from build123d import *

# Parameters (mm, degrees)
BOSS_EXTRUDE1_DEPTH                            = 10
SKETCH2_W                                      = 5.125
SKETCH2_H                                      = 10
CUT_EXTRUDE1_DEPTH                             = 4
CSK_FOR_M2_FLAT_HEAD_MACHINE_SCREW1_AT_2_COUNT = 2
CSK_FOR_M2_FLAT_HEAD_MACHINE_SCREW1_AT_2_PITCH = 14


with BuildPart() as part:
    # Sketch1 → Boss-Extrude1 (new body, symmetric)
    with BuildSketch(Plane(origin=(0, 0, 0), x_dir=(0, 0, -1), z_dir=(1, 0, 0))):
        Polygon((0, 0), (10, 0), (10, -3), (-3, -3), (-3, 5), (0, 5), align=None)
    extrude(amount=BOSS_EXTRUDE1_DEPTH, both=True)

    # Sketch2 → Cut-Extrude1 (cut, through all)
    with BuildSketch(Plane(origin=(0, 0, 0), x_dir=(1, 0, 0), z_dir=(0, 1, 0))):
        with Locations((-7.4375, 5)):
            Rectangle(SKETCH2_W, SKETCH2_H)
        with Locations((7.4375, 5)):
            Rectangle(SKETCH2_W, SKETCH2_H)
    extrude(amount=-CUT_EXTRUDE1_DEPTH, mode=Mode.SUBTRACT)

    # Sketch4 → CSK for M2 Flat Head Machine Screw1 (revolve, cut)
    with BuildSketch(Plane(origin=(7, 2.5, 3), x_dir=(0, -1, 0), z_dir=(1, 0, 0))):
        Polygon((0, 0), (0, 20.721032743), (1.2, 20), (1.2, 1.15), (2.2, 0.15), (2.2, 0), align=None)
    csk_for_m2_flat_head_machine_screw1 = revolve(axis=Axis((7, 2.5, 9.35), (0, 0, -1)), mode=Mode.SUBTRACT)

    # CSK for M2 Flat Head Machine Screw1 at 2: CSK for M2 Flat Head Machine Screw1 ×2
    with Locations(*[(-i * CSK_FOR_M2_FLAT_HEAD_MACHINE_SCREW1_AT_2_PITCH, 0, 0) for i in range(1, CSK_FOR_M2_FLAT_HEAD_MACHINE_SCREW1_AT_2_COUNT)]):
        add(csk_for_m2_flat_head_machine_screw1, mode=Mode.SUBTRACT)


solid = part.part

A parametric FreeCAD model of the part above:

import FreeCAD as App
import Part
import Sketcher

V = App.Vector
Q = App.Units.Quantity

doc = App.newDocument("Part")
params = doc.addObject("Spreadsheet::Sheet", "Params")
for row, (alias, value) in enumerate([
    ("sketch1_width", "5 mm"),
    ("sketch1_width2", "8 mm"),
    ("sketch1_height", "10 mm"),
    ("pad1_length", "20 mm"),
    ("sketch2_height", "10 mm"),
    ("sketch3_width", "2.2 mm"),
    ("sketch3_height", "0.15 mm"),
    ("groove_angle", "360 deg"),
    ("linearpattern_pitch", "14 mm"),
], start=1):
    params.set(f"A{row}", alias)
    params.set(f"B{row}", "=" + value)
    params.setAlias(f"B{row}", alias)

body = doc.addObject("PartDesign::Body", "Body")

# Sketch on YZ plane
sketch1 = body.newObject("Sketcher::SketchObject", "Sketch")
sketch1.AttachmentSupport = (doc.getObject("YZ_Plane"), [""])
sketch1.MapMode = "FlatFace"
sketch1.addGeometry([
    Part.LineSegment(V(0, -10, 0), V(0, 0, 0)),  # 0
    Part.LineSegment(V(0, 0, 0), V(5, 0, 0)),  # 1
    Part.LineSegment(V(5, 0, 0), V(5, 3, 0)),  # 2
    Part.LineSegment(V(5, 3, 0), V(-3, 3, 0)),  # 3
    Part.LineSegment(V(-3, 3, 0), V(-3, -10, 0)),  # 4
    Part.LineSegment(V(-3, -10, 0), V(0, -10, 0)),  # 5
], False)
sketch1.addConstraint([
    Sketcher.Constraint("Coincident", 0, 2, 1, 1),
    Sketcher.Constraint("Coincident", 1, 2, 2, 1),
    Sketcher.Constraint("Coincident", 2, 2, 3, 1),
    Sketcher.Constraint("Coincident", 3, 2, 4, 1),
    Sketcher.Constraint("Coincident", 4, 2, 5, 1),
    Sketcher.Constraint("Coincident", 5, 2, 0, 1),
    Sketcher.Constraint("Vertical", 0),
    Sketcher.Constraint("Horizontal", 1),
    Sketcher.Constraint("Vertical", 2),
    Sketcher.Constraint("Horizontal", 3),
    Sketcher.Constraint("Vertical", 4),
    Sketcher.Constraint("Horizontal", 5),
    Sketcher.Constraint("Coincident", 0, 2, -1, 1),
    Sketcher.Constraint("Equal", 5, 2),
    Sketcher.Constraint("DistanceX", 1, 1, 1, 2, 5.0),
    Sketcher.Constraint("DistanceX", 3, 2, 3, 1, 8.0),
    Sketcher.Constraint("DistanceY", 0, 1, 0, 2, 10.0),
])
sketch1.setExpression("Constraints[14]", "Params.sketch1_width")
sketch1.setExpression("Constraints[15]", "Params.sketch1_width2")
sketch1.setExpression("Constraints[16]", "Params.sketch1_height")
pad1 = body.newObject("PartDesign::Pad", "Pad")
pad1.Profile = sketch1
pad1.setExpression("Length", "Params.pad1_length")
pad1.Midplane = True

# Sketch on XZ plane
sketch2 = body.newObject("Sketcher::SketchObject", "Sketch001")
sketch2.AttachmentSupport = (doc.getObject("XZ_Plane"), [""])
sketch2.MapMode = "FlatFace"
sketch2.addGeometry([
    Part.LineSegment(V(-10, -10, 0), V(-10, 0, 0)),  # 0
    Part.LineSegment(V(-10, 0, 0), V(-5, 0, 0)),  # 1
    Part.LineSegment(V(-5, 0, 0), V(-5, -10, 0)),  # 2
    Part.LineSegment(V(-5, -10, 0), V(-10, -10, 0)),  # 3
    Part.LineSegment(V(5, -10, 0), V(5, 0, 0)),  # 4
    Part.LineSegment(V(5, 0, 0), V(10, 0, 0)),  # 5
    Part.LineSegment(V(10, 0, 0), V(10, -10, 0)),  # 6
    Part.LineSegment(V(10, -10, 0), V(5, -10, 0)),  # 7
], False)
sketch2.addConstraint([
    Sketcher.Constraint("Coincident", 0, 2, 1, 1),
    Sketcher.Constraint("Coincident", 1, 2, 2, 1),
    Sketcher.Constraint("Coincident", 2, 2, 3, 1),
    Sketcher.Constraint("Coincident", 3, 2, 0, 1),
    Sketcher.Constraint("Coincident", 4, 2, 5, 1),
    Sketcher.Constraint("Coincident", 5, 2, 6, 1),
    Sketcher.Constraint("Coincident", 6, 2, 7, 1),
    Sketcher.Constraint("Coincident", 7, 2, 4, 1),
    Sketcher.Constraint("Vertical", 0),
    Sketcher.Constraint("Horizontal", 1),
    Sketcher.Constraint("Vertical", 2),
    Sketcher.Constraint("Horizontal", 3),
    Sketcher.Constraint("Vertical", 4),
    Sketcher.Constraint("Horizontal", 5),
    Sketcher.Constraint("Vertical", 6),
    Sketcher.Constraint("Horizontal", 7),
    Sketcher.Constraint("Symmetric", 1, 2, 4, 2, -1, 1),
    Sketcher.Constraint("Symmetric", 0, 2, 5, 2, -2),
    Sketcher.Constraint("Horizontal", 3, 2, 6, 2),
    Sketcher.Constraint("DistanceY", 0, 1, 0, 2, 10.0),
    Sketcher.Constraint("DistanceX", 0, 2, -1, 1, 10.0),
    Sketcher.Constraint("DistanceX", 1, 1, 1, 2, 5.125),
])
sketch2.setExpression("Constraints[19]", "Params.sketch2_height")
pocket1 = body.newObject("PartDesign::Pocket", "Pocket")
pocket1.Profile = sketch2
pocket1.Type = "ThroughAll"
pocket1.Reversed = True

# Sketch on YZ plane
sketch3 = body.newObject("Sketcher::SketchObject", "Sketch002")
sketch3.AttachmentSupport = (doc.getObject("YZ_Plane"), [""])
sketch3.MapMode = "FlatFace"
sketch3.AttachmentOffset = App.Placement(V(0, 0, 7), App.Rotation())
sketch3.addGeometry([
    Part.LineSegment(V(2.5, -17.72, 0), V(2.5, 3, 0)),  # 0
    Part.LineSegment(V(2.5, 3, 0), V(0.3, 3, 0)),  # 1
    Part.LineSegment(V(0.3, 3, 0), V(0.3, 2.85, 0)),  # 2
    Part.LineSegment(V(0.3, 2.85, 0), V(1.3, 1.85, 0)),  # 3
    Part.LineSegment(V(1.3, 1.85, 0), V(1.3, -17, 0)),  # 4
    Part.LineSegment(V(1.3, -17, 0), V(2.5, -17.72, 0)),  # 5
], False)
sketch3.addGeometry(Part.LineSegment(V(2.5, 3, 0), V(2.5, -17.72, 0)), True)  # axis
sketch3.addConstraint([
    Sketcher.Constraint("Coincident", 0, 2, 1, 1),
    Sketcher.Constraint("Coincident", 1, 2, 2, 1),
    Sketcher.Constraint("Coincident", 2, 2, 3, 1),
    Sketcher.Constraint("Coincident", 3, 2, 4, 1),
    Sketcher.Constraint("Coincident", 4, 2, 5, 1),
    Sketcher.Constraint("Coincident", 5, 2, 0, 1),
    Sketcher.Constraint("Vertical", 0),
    Sketcher.Constraint("Horizontal", 1),
    Sketcher.Constraint("Vertical", 2),
    Sketcher.Constraint("Vertical", 4),
    Sketcher.Constraint("Vertical", 6),
    Sketcher.Constraint("Coincident", 6, 1, 0, 2),
    Sketcher.Constraint("Equal", 0, 6),
    Sketcher.Constraint("Angle", 3, Q("-45 deg")),
    Sketcher.Constraint("Angle", 5, Q("-31 deg")),
    Sketcher.Constraint("DistanceX", 1, 2, 1, 1, 2.2),
    Sketcher.Constraint("DistanceY", -1, 1, 0, 2, 3.0),
    Sketcher.Constraint("DistanceY", 4, 2, -1, 1, 17.0),
    Sketcher.Constraint("DistanceX", 2, 2, 3, 2, 1.0),
    Sketcher.Constraint("DistanceY", 2, 2, 2, 1, 0.15),
    Sketcher.Constraint("DistanceX", -1, 1, 0, 2, 2.5),
])
sketch3.setExpression("Constraints[15]", "Params.sketch3_width")
sketch3.setExpression("Constraints[19]", "Params.sketch3_height")
groove = body.newObject("PartDesign::Groove", "Groove")
groove.Profile = sketch3
groove.ReferenceAxis = (sketch3, ["Axis0"])
groove.setExpression("Angle", "Params.groove_angle")
doc.recompute()

linearpattern = body.newObject("PartDesign::LinearPattern", "LinearPattern")
linearpattern.Originals = [groove]
linearpattern.Direction = (doc.getObject("X_Axis"), [""])
linearpattern.Mode = "offset"
linearpattern.setExpression("Offset", "Params.linearpattern_pitch")
linearpattern.Occurrences = 2
linearpattern.Reversed = True
body.Tip = linearpattern

doc.recompute()
